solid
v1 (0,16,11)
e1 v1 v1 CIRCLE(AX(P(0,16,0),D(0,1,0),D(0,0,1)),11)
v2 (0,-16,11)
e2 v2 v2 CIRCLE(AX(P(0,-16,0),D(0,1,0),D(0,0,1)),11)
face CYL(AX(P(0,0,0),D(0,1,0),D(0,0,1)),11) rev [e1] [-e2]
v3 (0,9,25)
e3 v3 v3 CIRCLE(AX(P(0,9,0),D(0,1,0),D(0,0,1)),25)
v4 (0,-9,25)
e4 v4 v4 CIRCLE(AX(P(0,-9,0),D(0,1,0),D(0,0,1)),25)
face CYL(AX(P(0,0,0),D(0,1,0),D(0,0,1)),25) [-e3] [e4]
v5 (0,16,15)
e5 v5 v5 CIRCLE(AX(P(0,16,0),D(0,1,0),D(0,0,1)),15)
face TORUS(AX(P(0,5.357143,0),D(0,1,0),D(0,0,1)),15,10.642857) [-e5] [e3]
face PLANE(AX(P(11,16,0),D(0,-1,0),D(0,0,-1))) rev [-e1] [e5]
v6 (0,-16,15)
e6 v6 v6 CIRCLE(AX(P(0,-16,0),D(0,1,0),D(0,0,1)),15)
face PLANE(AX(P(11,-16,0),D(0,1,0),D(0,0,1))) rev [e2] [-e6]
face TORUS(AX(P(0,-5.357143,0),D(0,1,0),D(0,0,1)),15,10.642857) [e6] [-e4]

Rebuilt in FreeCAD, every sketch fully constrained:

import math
import FreeCAD as App
import Part
import Sketcher

V = App.Vector
Q = App.Units.Quantity

doc = App.newDocument("Part")
body = doc.addObject("PartDesign::Body", "Body")

sketch1 = body.newObject("Sketcher::SketchObject", "Sketch")
sketch1.AttachmentSupport = (doc.getObject("XY_Plane"), [""])
sketch1.MapMode = "FlatFace"
sketch1.addGeometry([
    Part.LineSegment(V(11, 16, 0), V(11, -16, 0)),
    Part.LineSegment(V(11, -16, 0), V(15, -16, 0)),
    Part.ArcOfCircle(Part.Circle(V(15, -5.4, 0), V(0, 0, 1), 10.6), math.radians(-90), math.radians(-20)),
    Part.LineSegment(V(25, -9, 0), V(25, 9, 0)),
    Part.ArcOfCircle(Part.Circle(V(15, 5.4, 0), V(0, 0, 1), 10.6), math.radians(20), math.radians(90)),
    Part.LineSegment(V(15, 16, 0), V(11, 16, 0)),
], False)
sketch1.addConstraint([
    Sketcher.Constraint("Coincident", 0, 2, 1, 1),
    Sketcher.Constraint("Tangent", 1, 2, 2, 1),
    Sketcher.Constraint("Coincident", 2, 2, 3, 1),
    Sketcher.Constraint("Coincident", 3, 2, 4, 1),
    Sketcher.Constraint("Tangent", 4, 2, 5, 1),
    Sketcher.Constraint("Coincident", 5, 2, 0, 1),
    Sketcher.Constraint("Vertical", 0),
    Sketcher.Constraint("Horizontal", 1),
    Sketcher.Constraint("Vertical", 3),
    Sketcher.Constraint("Horizontal", 5),
    Sketcher.Constraint("Equal", 2, 4),
    Sketcher.Constraint("Symmetric", 2, 3, 4, 3, -1),
    Sketcher.Constraint("DistanceX", 1, 1, 1, 2, Q("4 mm")),
    Sketcher.Constraint("DistanceY", 0, 2, 0, 1, Q("32 mm")),
    Sketcher.Constraint("DistanceY", 3, 1, 3, 2, Q("18 mm")),
    Sketcher.Constraint("DistanceX", -1, 1, 2, 3, Q("15 mm")),
    Sketcher.Constraint("DistanceX", -1, 1, 2, 2, Q("25 mm")),
])
revolution = body.newObject("PartDesign::Revolution", "Revolution")
revolution.Profile = sketch1
revolution.ReferenceAxis = (sketch1, ["V_Axis"])
revolution.Angle = 360

doc.recompute()
